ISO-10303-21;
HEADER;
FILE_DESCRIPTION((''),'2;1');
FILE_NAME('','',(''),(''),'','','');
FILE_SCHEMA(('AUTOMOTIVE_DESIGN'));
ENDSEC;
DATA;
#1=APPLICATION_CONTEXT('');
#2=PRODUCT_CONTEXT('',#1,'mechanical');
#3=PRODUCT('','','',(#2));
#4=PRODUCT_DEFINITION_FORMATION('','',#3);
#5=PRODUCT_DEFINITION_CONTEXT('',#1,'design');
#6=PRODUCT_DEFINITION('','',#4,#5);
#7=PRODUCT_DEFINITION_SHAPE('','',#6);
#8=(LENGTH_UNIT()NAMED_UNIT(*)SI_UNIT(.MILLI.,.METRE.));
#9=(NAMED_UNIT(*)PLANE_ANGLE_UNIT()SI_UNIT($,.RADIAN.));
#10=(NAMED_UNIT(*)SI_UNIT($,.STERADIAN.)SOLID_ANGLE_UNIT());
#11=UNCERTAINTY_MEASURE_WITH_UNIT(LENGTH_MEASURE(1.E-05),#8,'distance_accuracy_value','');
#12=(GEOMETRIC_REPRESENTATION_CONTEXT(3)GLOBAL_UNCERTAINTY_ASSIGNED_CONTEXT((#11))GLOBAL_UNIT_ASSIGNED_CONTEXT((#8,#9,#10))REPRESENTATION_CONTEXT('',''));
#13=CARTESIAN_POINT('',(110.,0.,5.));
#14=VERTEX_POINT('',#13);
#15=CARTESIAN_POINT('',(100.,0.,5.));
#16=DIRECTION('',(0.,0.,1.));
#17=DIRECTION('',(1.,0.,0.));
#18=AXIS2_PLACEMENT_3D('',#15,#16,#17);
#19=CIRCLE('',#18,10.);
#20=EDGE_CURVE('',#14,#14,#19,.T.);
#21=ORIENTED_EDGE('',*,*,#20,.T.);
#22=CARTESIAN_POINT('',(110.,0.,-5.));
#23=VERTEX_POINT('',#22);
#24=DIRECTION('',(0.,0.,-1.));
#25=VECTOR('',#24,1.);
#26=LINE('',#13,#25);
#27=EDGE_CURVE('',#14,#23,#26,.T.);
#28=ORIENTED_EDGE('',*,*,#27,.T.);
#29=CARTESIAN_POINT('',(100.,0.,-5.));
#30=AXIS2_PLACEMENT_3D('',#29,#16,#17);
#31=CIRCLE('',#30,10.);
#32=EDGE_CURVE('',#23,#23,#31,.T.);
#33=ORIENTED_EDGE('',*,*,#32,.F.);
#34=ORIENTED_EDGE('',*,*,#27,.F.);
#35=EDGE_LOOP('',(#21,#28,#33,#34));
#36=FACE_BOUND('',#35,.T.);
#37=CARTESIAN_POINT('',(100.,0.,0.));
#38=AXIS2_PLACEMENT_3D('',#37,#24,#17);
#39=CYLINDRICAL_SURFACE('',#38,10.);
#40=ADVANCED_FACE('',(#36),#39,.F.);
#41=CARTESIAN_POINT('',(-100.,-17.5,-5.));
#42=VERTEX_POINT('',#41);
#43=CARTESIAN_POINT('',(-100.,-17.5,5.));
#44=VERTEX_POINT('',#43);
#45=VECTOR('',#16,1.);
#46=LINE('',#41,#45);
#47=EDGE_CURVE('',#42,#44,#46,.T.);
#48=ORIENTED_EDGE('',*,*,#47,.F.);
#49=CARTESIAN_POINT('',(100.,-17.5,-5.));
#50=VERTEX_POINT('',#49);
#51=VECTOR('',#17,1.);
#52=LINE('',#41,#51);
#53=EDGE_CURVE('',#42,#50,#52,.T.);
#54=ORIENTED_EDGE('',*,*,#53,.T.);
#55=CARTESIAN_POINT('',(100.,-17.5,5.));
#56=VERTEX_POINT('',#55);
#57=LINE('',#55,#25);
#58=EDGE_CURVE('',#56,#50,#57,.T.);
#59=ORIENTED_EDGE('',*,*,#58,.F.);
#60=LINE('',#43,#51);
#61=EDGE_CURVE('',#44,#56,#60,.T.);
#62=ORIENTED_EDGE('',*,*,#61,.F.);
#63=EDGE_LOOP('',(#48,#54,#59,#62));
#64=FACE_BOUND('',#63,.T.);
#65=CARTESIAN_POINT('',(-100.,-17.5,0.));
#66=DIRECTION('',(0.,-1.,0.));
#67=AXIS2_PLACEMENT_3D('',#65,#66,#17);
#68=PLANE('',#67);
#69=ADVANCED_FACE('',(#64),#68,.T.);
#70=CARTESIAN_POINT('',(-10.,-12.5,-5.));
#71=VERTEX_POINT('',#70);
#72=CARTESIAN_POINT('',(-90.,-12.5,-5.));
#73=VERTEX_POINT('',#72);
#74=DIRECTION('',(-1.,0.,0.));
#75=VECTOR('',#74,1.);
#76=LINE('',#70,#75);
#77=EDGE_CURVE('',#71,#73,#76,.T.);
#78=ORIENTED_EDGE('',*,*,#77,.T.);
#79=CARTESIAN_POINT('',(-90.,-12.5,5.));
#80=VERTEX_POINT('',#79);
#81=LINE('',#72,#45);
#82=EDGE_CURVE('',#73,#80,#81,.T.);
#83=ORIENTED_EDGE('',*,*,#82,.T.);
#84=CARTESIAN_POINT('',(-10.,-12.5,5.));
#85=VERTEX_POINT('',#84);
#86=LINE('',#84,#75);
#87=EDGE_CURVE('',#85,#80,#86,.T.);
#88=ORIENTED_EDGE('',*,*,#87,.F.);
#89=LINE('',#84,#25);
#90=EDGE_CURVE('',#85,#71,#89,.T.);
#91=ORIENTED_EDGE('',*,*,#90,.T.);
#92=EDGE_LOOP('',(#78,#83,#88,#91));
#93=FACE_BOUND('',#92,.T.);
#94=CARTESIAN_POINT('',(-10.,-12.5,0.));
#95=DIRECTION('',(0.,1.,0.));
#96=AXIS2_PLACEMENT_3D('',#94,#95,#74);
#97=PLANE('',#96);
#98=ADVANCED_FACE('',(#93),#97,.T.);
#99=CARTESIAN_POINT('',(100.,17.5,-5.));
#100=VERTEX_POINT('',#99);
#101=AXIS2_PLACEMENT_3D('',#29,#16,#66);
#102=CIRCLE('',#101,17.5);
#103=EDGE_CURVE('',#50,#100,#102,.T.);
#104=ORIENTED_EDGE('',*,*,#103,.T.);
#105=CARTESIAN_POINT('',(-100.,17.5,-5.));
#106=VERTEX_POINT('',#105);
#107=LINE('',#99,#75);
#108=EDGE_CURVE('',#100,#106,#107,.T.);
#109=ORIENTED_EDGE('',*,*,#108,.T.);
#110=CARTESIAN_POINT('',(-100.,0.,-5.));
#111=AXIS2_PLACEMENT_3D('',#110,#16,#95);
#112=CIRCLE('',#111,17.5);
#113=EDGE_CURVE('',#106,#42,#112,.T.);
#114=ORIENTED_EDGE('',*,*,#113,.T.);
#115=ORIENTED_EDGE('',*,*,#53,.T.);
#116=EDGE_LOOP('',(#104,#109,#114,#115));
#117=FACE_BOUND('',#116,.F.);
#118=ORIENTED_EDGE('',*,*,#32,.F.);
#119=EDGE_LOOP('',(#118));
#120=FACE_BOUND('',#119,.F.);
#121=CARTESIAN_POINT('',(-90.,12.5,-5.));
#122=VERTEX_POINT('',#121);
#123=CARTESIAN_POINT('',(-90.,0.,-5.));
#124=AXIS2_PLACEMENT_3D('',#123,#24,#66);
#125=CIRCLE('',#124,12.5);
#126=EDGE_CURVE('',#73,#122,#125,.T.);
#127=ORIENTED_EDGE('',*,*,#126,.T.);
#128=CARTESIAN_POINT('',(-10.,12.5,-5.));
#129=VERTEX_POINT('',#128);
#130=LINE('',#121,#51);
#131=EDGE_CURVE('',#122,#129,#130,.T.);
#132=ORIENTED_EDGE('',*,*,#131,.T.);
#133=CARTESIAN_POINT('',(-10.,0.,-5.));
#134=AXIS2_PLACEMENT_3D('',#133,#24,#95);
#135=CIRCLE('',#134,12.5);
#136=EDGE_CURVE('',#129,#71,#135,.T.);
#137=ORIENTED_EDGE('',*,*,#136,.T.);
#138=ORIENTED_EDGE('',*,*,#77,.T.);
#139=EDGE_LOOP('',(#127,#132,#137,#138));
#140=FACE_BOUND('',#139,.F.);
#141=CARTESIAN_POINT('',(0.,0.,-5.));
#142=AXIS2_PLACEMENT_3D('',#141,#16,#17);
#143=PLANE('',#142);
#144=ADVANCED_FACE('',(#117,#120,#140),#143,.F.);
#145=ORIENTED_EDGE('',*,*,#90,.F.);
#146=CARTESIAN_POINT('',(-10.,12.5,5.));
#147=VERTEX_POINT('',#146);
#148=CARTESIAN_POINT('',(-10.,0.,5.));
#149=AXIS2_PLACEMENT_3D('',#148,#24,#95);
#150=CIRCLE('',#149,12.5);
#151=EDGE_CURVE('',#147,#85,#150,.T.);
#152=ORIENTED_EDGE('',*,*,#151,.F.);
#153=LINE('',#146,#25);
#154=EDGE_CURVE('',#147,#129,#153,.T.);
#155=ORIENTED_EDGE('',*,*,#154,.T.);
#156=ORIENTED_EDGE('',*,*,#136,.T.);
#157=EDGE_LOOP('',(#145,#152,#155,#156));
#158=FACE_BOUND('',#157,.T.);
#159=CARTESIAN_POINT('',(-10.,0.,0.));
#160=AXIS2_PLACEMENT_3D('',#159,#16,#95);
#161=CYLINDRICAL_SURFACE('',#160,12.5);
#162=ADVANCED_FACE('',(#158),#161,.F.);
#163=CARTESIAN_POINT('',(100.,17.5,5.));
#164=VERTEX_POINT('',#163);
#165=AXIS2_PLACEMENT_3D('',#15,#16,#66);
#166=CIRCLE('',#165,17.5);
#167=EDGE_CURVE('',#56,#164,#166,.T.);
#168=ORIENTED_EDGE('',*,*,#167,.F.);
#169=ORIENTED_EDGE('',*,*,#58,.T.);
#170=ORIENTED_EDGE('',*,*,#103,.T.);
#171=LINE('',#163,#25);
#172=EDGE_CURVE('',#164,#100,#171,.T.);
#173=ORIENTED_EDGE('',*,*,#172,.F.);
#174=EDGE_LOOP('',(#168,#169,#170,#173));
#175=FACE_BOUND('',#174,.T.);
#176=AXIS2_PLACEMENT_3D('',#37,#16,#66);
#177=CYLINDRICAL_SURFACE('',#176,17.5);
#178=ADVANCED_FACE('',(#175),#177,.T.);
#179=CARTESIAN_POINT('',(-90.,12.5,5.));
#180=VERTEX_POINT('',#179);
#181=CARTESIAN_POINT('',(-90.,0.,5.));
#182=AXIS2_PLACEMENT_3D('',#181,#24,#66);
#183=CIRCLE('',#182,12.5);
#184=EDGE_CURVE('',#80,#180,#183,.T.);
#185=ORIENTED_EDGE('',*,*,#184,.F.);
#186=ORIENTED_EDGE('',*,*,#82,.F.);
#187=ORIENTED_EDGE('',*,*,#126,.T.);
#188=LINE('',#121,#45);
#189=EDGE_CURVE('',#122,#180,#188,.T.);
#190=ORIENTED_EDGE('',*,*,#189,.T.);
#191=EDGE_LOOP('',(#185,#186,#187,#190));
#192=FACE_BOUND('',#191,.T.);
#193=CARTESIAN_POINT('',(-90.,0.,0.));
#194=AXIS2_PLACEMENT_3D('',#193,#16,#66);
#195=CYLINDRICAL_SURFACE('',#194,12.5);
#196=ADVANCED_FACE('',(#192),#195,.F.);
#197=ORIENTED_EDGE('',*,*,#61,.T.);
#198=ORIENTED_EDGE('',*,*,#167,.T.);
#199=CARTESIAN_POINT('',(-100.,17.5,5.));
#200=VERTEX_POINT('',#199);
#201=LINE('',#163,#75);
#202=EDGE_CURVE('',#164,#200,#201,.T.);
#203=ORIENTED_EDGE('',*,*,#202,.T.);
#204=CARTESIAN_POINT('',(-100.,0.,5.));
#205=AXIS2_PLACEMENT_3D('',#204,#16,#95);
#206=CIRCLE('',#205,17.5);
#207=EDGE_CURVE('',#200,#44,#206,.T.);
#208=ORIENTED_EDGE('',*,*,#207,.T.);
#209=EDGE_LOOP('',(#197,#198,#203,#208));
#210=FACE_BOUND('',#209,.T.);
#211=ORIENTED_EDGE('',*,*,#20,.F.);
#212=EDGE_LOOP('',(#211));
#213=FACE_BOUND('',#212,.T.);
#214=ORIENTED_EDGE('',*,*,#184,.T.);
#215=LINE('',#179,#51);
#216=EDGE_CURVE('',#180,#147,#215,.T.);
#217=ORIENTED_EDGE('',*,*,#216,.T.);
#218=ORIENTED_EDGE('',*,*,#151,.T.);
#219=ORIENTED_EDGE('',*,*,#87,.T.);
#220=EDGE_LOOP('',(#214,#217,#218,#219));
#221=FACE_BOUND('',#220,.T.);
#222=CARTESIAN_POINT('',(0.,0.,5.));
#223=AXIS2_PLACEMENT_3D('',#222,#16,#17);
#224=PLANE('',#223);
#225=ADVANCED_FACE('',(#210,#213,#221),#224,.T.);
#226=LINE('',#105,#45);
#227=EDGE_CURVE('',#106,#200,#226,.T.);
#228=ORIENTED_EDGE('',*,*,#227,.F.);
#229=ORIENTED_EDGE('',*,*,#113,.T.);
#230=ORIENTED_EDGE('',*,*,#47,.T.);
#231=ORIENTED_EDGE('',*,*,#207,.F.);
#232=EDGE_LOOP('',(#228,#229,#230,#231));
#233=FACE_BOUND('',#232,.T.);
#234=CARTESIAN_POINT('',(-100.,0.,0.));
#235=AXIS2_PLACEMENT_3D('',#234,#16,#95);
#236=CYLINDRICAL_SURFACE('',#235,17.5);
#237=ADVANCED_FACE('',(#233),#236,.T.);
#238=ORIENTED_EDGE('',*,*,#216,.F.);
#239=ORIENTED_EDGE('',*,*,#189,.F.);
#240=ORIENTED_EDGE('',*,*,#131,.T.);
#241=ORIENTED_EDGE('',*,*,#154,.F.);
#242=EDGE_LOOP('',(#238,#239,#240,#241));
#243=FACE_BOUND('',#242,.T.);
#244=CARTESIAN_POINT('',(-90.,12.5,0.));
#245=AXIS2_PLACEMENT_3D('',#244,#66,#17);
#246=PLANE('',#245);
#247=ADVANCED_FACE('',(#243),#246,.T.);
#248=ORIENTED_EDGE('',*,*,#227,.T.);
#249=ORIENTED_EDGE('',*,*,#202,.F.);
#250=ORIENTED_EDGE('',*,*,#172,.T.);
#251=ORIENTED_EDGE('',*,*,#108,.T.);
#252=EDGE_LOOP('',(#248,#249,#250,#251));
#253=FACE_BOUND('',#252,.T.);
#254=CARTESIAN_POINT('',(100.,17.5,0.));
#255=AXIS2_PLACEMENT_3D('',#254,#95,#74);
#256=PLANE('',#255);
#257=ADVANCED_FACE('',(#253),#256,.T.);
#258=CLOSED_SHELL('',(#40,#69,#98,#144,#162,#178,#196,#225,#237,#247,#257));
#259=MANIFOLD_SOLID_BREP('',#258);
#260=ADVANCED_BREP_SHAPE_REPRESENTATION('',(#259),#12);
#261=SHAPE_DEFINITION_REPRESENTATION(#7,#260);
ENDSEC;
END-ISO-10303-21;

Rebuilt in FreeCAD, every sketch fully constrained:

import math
import FreeCAD as App
import Part
import Sketcher
from FreeCAD import Vector
Q = App.Units.Quantity

doc = App.newDocument("Part")
body = doc.addObject("PartDesign::Body", "Body")

sketch1 = body.newObject("Sketcher::SketchObject", "Sketch")
sketch1.AttachmentSupport = (doc.getObject("XY_Plane"), [""])
sketch1.MapMode = "FlatFace"
sketch1.addGeometry([
    Part.LineSegment(Vector(100, 18, 0), Vector(-100, 18, 0)),
    Part.ArcOfCircle(Part.Circle(Vector(-100, 0, 0), Vector(0, 0, 1), 18), math.radians(90), math.radians(270)),
    Part.LineSegment(Vector(-100, -18, 0), Vector(100, -18, 0)),
    Part.ArcOfCircle(Part.Circle(Vector(100, 0, 0), Vector(0, 0, 1), 18), math.radians(-90), math.radians(90)),
    Part.LineSegment(Vector(-10, -12, 0), Vector(-90, -12, 0)),
    Part.ArcOfCircle(Part.Circle(Vector(-90, 0, 0), Vector(0, 0, 1), 12), math.radians(90), math.radians(270)),
    Part.LineSegment(Vector(-90, 12, 0), Vector(-10, 12, 0)),
    Part.ArcOfCircle(Part.Circle(Vector(-10, 0, 0), Vector(0, 0, 1), 12), math.radians(-90), math.radians(90)),
    Part.Circle(Vector(100, 0, 0), Vector(0, 0, 1), 10),
], False)
sketch1.addConstraint([
    Sketcher.Constraint("Tangent", 0, 2, 1, 1),
    Sketcher.Constraint("Tangent", 1, 2, 2, 1),
    Sketcher.Constraint("Tangent", 2, 2, 3, 1),
    Sketcher.Constraint("Tangent", 3, 2, 0, 1),
    Sketcher.Constraint("Tangent", 4, 2, 5, 2),
    Sketcher.Constraint("Tangent", 5, 1, 6, 1),
    Sketcher.Constraint("Tangent", 6, 2, 7, 2),
    Sketcher.Constraint("Tangent", 7, 1, 4, 1),
    Sketcher.Constraint("Horizontal", 0),
    Sketcher.Constraint("Horizontal", 2),
    Sketcher.Constraint("Horizontal", 4),
    Sketcher.Constraint("Horizontal", 6),
    Sketcher.Constraint("Coincident", 8, 3, 3, 3),
    Sketcher.Constraint("Symmetric", 1, 3, 3, 3, -1, 1),
    Sketcher.Constraint("PointOnObject", 5, 3, -1),
    Sketcher.Constraint("Diameter", 8, Q("20 mm")),
    Sketcher.Constraint("Radius", 1, Q("17.5 mm")),
    Sketcher.Constraint("Radius", 5, Q("12.5 mm")),
    Sketcher.Constraint("DistanceX", 0, 2, 0, 1, Q("200 mm")),
    Sketcher.Constraint("DistanceX", 4, 2, 4, 1, Q("80 mm")),
    Sketcher.Constraint("DistanceX", 5, 3, -1, 1, Q("90 mm")),
])
pad1 = body.newObject("PartDesign::Pad", "Pad")
pad1.Profile = sketch1
pad1.Length = 10
pad1.Midplane = True

doc.recompute()
